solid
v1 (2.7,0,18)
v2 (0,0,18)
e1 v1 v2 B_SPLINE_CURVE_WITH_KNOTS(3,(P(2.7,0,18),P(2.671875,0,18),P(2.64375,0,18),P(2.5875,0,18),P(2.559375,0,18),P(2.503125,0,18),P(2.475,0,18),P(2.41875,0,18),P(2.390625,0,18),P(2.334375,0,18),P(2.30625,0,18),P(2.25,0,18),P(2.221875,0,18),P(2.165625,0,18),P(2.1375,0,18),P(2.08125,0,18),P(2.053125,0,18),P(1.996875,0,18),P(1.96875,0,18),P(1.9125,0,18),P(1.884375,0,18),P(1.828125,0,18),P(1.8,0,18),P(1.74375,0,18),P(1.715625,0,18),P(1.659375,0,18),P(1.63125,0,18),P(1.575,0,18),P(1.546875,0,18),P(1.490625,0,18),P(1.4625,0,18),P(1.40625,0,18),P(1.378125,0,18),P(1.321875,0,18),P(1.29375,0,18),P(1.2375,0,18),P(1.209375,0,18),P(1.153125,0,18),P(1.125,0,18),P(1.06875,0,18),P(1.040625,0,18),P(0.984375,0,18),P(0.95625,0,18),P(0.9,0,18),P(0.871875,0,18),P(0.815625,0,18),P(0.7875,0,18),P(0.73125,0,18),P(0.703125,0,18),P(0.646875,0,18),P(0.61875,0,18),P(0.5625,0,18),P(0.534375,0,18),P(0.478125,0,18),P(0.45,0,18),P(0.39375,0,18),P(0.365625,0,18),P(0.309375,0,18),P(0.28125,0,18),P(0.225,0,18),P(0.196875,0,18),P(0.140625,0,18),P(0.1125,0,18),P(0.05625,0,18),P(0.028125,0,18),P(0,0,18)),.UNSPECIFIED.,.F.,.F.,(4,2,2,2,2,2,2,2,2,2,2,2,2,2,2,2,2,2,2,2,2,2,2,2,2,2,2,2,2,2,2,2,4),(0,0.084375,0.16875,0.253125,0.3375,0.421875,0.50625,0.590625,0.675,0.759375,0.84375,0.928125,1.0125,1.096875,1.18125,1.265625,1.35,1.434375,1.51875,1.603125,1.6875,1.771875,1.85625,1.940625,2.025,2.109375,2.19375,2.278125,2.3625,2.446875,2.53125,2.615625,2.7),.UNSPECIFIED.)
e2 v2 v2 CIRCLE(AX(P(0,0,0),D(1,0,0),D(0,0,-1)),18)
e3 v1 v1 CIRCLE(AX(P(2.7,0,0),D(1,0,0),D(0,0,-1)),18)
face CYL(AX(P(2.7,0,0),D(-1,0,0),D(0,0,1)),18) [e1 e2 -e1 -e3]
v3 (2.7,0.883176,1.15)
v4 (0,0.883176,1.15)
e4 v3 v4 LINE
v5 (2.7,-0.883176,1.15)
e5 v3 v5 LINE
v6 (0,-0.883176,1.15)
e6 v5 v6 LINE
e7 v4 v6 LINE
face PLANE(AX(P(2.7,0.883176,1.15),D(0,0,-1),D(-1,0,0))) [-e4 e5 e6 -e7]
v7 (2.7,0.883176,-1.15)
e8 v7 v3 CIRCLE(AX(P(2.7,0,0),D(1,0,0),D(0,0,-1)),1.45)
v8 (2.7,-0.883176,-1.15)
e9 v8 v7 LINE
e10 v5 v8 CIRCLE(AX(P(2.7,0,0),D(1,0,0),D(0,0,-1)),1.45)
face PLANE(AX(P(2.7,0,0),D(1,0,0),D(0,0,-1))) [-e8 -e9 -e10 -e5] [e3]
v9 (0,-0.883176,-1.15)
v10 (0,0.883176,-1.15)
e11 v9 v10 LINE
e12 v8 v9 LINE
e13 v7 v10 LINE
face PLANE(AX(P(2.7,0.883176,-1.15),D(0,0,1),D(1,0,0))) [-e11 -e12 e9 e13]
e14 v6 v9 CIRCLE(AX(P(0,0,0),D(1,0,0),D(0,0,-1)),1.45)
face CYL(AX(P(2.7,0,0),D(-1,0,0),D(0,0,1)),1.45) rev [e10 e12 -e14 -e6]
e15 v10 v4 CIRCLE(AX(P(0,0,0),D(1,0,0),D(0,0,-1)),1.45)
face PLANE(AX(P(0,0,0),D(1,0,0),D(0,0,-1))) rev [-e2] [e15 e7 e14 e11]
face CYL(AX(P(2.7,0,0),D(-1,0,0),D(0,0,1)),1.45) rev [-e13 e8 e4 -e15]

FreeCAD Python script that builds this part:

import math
import FreeCAD as App
import Part
import Sketcher

V = App.Vector

doc = App.newDocument("Part")
body = doc.addObject("PartDesign::Body", "Body")

# Sketch on YZ plane
sketch1 = body.newObject("Sketcher::SketchObject", "Sketch")
sketch1.AttachmentSupport = (doc.getObject("YZ_Plane"), [""])
sketch1.MapMode = "FlatFace"
sketch1.addGeometry(Part.Circle(V(0, 0, 0), V(0, 0, 1), 18), False)
sketch1.addGeometry(Part.ArcOfCircle(Part.Circle(V(0, 0, 0), V(0, 0, 1), 1.5), math.radians(-52), math.radians(52)), False)
sketch1.addGeometry(Part.LineSegment(V(0.9, -1.1, 0), V(-0.9, -1.1, 0)), False)
sketch1.addGeometry(Part.ArcOfCircle(Part.Circle(V(0, 0, 0), V(0, 0, 1), 1.5), math.radians(128), math.radians(232)), False)
sketch1.addGeometry(Part.LineSegment(V(-0.9, 1.1, 0), V(0.9, 1.1, 0)), False)
sketch1.addConstraint(Sketcher.Constraint("Coincident", 1, 1, 2, 1))
sketch1.addConstraint(Sketcher.Constraint("Coincident", 2, 2, 3, 2))
sketch1.addConstraint(Sketcher.Constraint("Coincident", 3, 1, 4, 1))
sketch1.addConstraint(Sketcher.Constraint("Coincident", 4, 2, 1, 2))
sketch1.addConstraint(Sketcher.Constraint("Horizontal", 2))
sketch1.addConstraint(Sketcher.Constraint("Horizontal", 4))
sketch1.addConstraint(Sketcher.Constraint("Coincident", 0, 3, -1, 1))
sketch1.addConstraint(Sketcher.Constraint("Coincident", 1, 3, -1, 1))
sketch1.addConstraint(Sketcher.Constraint("Coincident", 3, 3, -1, 1))
sketch1.addConstraint(Sketcher.Constraint("Equal", 1, 3))
sketch1.addConstraint(Sketcher.Constraint("Vertical", 2, 2, 3, 1))
sketch1.addConstraint(Sketcher.Constraint("Diameter", 0, 36.0))
sketch1.addConstraint(Sketcher.Constraint("Radius", 1, 1.45))
sketch1.addConstraint(Sketcher.Constraint("DistanceY", 2, 2, 3, 1, 2.3))
pad1 = body.newObject("PartDesign::Pad", "Pad")
pad1.Profile = sketch1
pad1.Length = 2.7

doc.recompute()
